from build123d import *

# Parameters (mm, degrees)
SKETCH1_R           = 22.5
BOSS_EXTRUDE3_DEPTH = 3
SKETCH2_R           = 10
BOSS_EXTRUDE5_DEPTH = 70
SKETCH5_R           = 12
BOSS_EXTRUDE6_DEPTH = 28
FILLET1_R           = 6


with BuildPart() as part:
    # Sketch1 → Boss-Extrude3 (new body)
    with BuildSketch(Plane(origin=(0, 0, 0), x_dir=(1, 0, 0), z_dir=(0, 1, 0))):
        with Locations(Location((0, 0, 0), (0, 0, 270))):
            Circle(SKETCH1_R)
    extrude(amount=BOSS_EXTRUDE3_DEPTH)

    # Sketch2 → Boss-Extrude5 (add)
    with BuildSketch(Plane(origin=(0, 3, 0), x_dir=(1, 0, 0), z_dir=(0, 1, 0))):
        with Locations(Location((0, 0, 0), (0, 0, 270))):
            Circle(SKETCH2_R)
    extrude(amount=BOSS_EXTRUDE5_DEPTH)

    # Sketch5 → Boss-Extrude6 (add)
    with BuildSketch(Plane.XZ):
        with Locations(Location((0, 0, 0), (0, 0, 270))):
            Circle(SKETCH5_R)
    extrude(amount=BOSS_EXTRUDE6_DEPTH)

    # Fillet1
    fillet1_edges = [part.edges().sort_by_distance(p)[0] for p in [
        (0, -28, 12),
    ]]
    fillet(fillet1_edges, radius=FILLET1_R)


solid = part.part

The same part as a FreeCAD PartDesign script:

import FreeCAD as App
import Part
import Sketcher
Q = App.Units.Quantity


def edges_at(feature, points):
    """Names of the edges that pass closest to the given points."""
    edges = feature.Shape.Edges
    near = lambda p: min(range(len(edges)), key=lambda i: edges[i].distToShape(Part.Vertex(*p))[0])
    return sorted({f"Edge{near(p) + 1}" for p in points})

doc = App.newDocument("Part")
params = doc.addObject("Spreadsheet::Sheet", "Params")
for row, (alias, value) in enumerate([
    ("sketch1_diameter", "45 mm"),
    ("pad1_length", "3 mm"),
    ("sketch2_diameter", "20 mm"),
    ("pad2_length", "70 mm"),
    ("sketch3_diameter", "24 mm"),
    ("pad3_length", "28 mm"),
    ("fillet_radius", "6 mm"),
], start=1):
    params.set(f"A{row}", alias)
    params.set(f"B{row}", "=" + value)
    params.setAlias(f"B{row}", alias)

body = doc.addObject("PartDesign::Body", "Body")

sketch1 = body.newObject("Sketcher::SketchObject", "Sketch")
sketch1.AttachmentSupport = (doc.getObject("XZ_Plane"), [""])
sketch1.MapMode = "FlatFace"
sketch1.addGeometry(Part.Circle(App.Vector(0, 0, 0), App.Vector(0, 0, 1), 22), False)
sketch1.addConstraint([
    Sketcher.Constraint("Coincident", 0, 3, -1, 1),
    Sketcher.Constraint("Diameter", 0, Q("45 mm")),
])
sketch1.setExpression("Constraints[1]", "Params.sketch1_diameter")
pad1 = body.newObject("PartDesign::Pad", "Pad")
pad1.Profile = sketch1
pad1.setExpression("Length", "Params.pad1_length")
pad1.Reversed = True

sketch2 = body.newObject("Sketcher::SketchObject", "Sketch001")
sketch2.AttachmentSupport = (doc.getObject("XZ_Plane"), [""])
sketch2.MapMode = "FlatFace"
sketch2.AttachmentOffset = App.Placement(App.Vector(0, 0, -3), App.Rotation())
sketch2.addGeometry(Part.Circle(App.Vector(0, 0, 0), App.Vector(0, 0, 1), 10), False)
sketch2.addConstraint([
    Sketcher.Constraint("Coincident", 0, 3, -1, 1),
    Sketcher.Constraint("Diameter", 0, Q("20 mm")),
])
sketch2.setExpression("Constraints[1]", "Params.sketch2_diameter")
pad2 = body.newObject("PartDesign::Pad", "Pad001")
pad2.Profile = sketch2
pad2.setExpression("Length", "Params.pad2_length")
pad2.Reversed = True

sketch3 = body.newObject("Sketcher::SketchObject", "Sketch002")
sketch3.AttachmentSupport = (doc.getObject("XZ_Plane"), [""])
sketch3.MapMode = "FlatFace"
sketch3.addGeometry(Part.Circle(App.Vector(0, 0, 0), App.Vector(0, 0, 1), 12), False)
sketch3.addConstraint([
    Sketcher.Constraint("Coincident", 0, 3, -1, 1),
    Sketcher.Constraint("Diameter", 0, Q("24 mm")),
])
sketch3.setExpression("Constraints[1]", "Params.sketch3_diameter")
pad3 = body.newObject("PartDesign::Pad", "Pad002")
pad3.Profile = sketch3
pad3.setExpression("Length", "Params.pad3_length")
doc.recompute()

fillet = body.newObject("PartDesign::Fillet", "Fillet")
fillet.Base = (pad3, edges_at(pad3, [(0, -28, 12)]))
fillet.setExpression("Radius", "Params.fillet_radius")

doc.recompute()
